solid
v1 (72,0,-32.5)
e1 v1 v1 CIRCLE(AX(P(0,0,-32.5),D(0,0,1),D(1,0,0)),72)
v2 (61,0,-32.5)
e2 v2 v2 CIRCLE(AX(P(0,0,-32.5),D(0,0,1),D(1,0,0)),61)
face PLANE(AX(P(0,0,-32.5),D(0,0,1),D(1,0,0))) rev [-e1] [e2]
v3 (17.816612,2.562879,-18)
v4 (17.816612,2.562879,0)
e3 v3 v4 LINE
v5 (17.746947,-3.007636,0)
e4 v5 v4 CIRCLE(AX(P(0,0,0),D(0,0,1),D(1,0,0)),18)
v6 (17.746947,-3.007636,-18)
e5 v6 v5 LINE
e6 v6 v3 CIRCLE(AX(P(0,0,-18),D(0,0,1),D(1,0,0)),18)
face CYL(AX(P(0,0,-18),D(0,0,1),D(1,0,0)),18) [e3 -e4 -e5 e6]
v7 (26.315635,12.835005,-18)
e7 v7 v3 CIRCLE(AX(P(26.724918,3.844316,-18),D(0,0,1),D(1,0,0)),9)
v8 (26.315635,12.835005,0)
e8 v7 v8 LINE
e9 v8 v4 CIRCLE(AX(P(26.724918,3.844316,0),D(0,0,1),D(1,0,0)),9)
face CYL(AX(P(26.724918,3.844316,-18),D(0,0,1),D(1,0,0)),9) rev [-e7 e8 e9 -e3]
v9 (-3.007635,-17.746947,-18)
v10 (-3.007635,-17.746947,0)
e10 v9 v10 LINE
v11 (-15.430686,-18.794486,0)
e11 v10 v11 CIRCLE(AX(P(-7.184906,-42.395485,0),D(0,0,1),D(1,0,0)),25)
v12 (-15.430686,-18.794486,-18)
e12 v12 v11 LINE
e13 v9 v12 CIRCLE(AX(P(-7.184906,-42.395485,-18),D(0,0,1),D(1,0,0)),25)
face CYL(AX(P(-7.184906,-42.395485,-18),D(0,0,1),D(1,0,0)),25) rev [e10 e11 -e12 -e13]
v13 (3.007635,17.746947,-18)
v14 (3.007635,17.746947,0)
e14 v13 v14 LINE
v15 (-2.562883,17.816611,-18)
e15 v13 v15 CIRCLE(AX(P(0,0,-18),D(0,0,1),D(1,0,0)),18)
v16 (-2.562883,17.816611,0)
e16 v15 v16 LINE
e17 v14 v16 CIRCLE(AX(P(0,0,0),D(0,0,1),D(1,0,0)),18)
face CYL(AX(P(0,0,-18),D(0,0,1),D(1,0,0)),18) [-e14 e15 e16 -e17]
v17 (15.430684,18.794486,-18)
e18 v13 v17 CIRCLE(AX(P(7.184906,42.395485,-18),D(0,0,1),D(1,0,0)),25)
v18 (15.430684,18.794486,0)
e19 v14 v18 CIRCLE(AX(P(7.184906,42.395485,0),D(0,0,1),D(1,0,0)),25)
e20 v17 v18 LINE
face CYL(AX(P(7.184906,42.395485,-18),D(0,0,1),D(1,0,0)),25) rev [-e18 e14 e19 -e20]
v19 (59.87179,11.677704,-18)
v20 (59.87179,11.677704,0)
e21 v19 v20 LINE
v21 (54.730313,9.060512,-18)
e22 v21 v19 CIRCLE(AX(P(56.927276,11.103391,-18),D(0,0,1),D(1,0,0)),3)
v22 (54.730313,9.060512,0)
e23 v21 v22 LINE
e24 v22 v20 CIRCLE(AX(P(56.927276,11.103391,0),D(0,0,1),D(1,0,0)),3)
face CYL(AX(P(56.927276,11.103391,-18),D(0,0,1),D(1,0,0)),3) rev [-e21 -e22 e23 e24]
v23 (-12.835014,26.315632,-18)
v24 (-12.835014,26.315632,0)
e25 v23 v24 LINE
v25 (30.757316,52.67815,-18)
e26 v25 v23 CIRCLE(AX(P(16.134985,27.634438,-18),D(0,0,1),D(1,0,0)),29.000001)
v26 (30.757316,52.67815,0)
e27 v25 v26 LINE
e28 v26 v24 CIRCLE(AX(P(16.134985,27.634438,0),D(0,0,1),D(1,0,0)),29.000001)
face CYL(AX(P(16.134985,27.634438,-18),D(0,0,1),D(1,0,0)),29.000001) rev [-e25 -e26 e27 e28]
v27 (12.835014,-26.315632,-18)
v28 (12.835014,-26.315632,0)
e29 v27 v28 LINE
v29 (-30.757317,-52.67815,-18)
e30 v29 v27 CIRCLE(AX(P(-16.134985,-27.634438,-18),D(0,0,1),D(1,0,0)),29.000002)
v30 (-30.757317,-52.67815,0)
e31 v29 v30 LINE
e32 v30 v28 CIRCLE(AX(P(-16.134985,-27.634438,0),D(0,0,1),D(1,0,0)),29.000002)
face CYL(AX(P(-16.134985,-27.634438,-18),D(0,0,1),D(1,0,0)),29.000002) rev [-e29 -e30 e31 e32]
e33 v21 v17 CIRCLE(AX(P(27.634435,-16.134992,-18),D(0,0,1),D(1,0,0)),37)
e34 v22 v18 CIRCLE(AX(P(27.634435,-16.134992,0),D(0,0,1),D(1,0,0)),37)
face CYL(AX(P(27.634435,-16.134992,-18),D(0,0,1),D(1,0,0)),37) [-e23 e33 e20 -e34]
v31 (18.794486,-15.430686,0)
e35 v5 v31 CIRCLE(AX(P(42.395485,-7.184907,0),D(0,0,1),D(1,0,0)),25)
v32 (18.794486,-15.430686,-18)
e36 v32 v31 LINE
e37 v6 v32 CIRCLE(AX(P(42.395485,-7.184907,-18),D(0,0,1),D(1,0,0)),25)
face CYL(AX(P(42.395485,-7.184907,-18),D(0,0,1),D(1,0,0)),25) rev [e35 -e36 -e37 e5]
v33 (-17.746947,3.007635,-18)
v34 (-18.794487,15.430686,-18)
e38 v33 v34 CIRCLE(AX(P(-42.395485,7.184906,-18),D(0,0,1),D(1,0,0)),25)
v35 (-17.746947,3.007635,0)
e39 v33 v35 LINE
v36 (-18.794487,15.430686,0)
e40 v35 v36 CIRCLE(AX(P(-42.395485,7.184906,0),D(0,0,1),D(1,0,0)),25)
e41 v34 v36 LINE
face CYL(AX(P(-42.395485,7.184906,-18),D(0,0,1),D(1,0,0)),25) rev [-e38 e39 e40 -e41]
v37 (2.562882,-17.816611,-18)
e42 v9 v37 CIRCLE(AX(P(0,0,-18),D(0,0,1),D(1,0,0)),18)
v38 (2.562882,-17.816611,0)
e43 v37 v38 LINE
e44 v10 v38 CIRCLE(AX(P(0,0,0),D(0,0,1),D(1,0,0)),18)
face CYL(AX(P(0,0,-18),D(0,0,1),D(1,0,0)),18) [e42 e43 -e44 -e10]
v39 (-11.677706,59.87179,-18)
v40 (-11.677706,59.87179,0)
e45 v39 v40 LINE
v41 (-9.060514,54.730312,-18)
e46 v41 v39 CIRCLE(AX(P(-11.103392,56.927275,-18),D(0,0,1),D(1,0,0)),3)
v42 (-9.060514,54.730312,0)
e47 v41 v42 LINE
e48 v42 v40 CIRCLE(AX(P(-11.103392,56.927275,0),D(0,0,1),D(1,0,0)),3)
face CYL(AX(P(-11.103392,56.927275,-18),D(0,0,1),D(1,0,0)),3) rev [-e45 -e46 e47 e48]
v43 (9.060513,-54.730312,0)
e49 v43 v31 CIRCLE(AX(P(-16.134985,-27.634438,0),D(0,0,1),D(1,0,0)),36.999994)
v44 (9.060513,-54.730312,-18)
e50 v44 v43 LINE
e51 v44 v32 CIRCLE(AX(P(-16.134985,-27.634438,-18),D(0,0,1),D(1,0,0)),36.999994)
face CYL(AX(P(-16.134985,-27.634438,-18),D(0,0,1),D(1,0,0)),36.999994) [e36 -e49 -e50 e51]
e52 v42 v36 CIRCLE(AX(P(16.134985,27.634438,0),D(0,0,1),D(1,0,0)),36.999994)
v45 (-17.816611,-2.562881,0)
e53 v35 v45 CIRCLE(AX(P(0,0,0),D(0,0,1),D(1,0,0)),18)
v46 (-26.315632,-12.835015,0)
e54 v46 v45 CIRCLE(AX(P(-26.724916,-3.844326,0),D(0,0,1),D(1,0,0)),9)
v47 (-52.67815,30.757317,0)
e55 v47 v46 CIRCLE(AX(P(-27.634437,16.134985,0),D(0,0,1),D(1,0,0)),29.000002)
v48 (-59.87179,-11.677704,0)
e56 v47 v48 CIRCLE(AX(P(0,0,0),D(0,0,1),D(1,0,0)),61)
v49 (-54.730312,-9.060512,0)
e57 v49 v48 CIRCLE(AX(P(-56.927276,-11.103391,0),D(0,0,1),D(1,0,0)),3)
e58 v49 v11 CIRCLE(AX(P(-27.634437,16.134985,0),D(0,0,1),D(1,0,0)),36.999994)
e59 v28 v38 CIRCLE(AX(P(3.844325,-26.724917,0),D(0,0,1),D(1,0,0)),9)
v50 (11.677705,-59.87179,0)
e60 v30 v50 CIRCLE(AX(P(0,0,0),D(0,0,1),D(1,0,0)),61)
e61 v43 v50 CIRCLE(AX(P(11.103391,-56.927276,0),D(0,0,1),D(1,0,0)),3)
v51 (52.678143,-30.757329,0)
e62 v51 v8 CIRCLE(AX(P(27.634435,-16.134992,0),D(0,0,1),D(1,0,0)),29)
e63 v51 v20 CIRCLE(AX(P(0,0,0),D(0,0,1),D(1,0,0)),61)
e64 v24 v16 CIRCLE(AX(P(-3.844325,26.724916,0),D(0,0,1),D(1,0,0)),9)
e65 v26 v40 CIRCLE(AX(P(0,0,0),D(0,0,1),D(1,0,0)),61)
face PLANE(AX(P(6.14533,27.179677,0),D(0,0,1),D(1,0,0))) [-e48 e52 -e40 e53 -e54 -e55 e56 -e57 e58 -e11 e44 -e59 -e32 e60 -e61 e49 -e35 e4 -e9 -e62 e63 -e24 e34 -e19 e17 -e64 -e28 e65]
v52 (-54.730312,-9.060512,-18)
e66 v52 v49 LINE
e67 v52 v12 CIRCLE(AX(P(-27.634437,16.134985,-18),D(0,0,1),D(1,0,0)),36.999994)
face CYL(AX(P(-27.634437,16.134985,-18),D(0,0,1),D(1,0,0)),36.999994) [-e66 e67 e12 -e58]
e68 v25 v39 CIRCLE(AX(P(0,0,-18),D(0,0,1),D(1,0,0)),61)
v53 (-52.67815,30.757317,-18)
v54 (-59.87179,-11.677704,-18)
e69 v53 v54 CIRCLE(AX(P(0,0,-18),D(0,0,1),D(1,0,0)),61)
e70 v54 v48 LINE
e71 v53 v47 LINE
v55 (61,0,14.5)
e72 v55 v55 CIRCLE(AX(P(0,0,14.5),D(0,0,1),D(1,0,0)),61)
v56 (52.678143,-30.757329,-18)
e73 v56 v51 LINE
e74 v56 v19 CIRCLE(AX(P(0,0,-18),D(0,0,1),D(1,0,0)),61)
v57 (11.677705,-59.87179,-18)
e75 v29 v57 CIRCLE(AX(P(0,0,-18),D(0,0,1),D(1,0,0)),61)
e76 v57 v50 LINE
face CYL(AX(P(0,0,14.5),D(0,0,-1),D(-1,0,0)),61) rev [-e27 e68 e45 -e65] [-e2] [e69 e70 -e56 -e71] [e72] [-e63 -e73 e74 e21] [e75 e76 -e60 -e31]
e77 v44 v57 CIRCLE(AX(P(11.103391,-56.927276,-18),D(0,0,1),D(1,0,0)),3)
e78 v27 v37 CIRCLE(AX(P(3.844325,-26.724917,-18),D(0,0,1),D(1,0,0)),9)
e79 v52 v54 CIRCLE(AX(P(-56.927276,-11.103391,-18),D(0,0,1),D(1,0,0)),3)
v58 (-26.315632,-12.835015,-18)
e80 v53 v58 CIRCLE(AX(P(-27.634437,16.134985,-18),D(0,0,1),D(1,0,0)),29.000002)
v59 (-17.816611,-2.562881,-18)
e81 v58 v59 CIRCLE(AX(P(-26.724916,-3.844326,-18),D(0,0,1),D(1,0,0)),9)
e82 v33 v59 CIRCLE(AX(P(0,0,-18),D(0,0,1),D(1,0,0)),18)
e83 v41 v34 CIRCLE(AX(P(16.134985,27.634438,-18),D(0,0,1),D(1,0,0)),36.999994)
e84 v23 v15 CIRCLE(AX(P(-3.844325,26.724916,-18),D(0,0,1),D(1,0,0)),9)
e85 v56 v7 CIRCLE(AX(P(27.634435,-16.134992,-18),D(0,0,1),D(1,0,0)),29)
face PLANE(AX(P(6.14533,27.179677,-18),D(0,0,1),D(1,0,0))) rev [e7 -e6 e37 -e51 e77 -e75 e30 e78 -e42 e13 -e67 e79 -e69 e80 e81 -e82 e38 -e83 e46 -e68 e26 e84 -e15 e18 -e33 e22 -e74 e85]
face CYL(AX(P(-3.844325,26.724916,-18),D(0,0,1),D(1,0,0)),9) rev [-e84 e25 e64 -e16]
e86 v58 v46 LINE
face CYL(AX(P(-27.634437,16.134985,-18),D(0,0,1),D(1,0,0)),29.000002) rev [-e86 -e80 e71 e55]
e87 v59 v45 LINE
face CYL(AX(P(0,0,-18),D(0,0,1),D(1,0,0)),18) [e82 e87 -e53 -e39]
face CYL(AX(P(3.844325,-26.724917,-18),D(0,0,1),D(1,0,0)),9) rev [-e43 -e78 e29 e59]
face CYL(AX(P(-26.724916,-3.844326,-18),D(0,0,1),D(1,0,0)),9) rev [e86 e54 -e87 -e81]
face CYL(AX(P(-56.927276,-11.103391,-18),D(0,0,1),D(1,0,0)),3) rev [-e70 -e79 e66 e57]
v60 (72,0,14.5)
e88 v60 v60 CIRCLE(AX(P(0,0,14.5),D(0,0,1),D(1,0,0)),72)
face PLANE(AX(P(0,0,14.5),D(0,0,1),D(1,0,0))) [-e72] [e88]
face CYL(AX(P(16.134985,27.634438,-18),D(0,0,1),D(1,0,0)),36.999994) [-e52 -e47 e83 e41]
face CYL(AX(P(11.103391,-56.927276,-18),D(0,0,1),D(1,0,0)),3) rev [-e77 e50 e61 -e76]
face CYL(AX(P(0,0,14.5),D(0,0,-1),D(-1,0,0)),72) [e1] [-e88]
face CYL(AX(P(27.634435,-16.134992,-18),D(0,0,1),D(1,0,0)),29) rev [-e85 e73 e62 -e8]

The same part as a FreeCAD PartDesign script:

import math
import FreeCAD as App
import Part
import Sketcher

V = App.Vector

doc = App.newDocument("Part")
body = doc.addObject("PartDesign::Body", "Body")

# Sketch on XY plane
sketch1 = body.newObject("Sketcher::SketchObject", "Sketch")
sketch1.AttachmentSupport = (doc.getObject("XY_Plane"), [""])
sketch1.MapMode = "FlatFace"
sketch1.addGeometry([
    Part.ArcOfCircle(Part.Circle(V(0, 0, 0), V(0, 0, 1), 61), math.radians(-120.279476), math.radians(-78.963297)),  # 0
    Part.ArcOfCircle(Part.Circle(V(11.103391, -56.927276, 0), V(0, 0, 1), 3), math.radians(132.918669), math.radians(281.036703)),  # 1
    Part.ArcOfCircle(Part.Circle(V(-16.134985, -27.634438, 0), V(0, 0, 1), 36.999994), math.radians(-47.081331), math.radians(19.258529)),  # 2
    Part.ArcOfCircle(Part.Circle(V(42.395485, -7.184907, 0), V(0, 0, 1), 25), math.radians(170.381283), math.radians(199.258529)),  # 3
    Part.ArcOfCircle(Part.Circle(V(0, 0, 0), V(0, 0, 1), 18), math.radians(-9.618719), math.radians(8.185715)),  # 4
    Part.ArcOfCircle(Part.Circle(V(26.724918, 3.844316, 0), V(0, 0, 1), 9), math.radians(92.606475), math.radians(188.185704)),  # 5
    Part.ArcOfCircle(Part.Circle(V(27.634435, -16.134992, 0), V(0, 0, 1), 29), math.radians(-30.279489), math.radians(92.606475)),  # 6
    Part.ArcOfCircle(Part.Circle(V(0, 0, 0), V(0, 0, 1), 61), math.radians(-30.279489), math.radians(11.036703)),  # 7
    Part.ArcOfCircle(Part.Circle(V(56.927276, 11.103391, 0), V(0, 0, 1), 3), math.radians(-137.081327), math.radians(11.036703)),  # 8
    Part.ArcOfCircle(Part.Circle(V(27.634435, -16.134992, 0), V(0, 0, 1), 37), math.radians(42.918673), math.radians(109.258525)),  # 9
    Part.ArcOfCircle(Part.Circle(V(7.184906, 42.395485, 0), V(0, 0, 1), 25), math.radians(-99.618717), math.radians(-70.741475)),  # 10
    Part.ArcOfCircle(Part.Circle(V(0, 0, 0), V(0, 0, 1), 18), math.radians(80.381283), math.radians(98.185729)),  # 11
    Part.ArcOfCircle(Part.Circle(V(-3.844325, 26.724916, 0), V(0, 0, 1), 9), math.radians(-177.393513), math.radians(-81.814267)),  # 12
    Part.ArcOfCircle(Part.Circle(V(16.134985, 27.634438, 0), V(0, 0, 1), 29.000001), math.radians(59.720526), math.radians(182.606487)),  # 13
    Part.ArcOfCircle(Part.Circle(V(0, 0, 0), V(0, 0, 1), 61), math.radians(59.720526), math.radians(101.036705)),  # 14
    Part.ArcOfCircle(Part.Circle(V(-11.103392, 56.927275, 0), V(0, 0, 1), 3), math.radians(-47.08133), math.radians(101.036705)),  # 15
    Part.ArcOfCircle(Part.Circle(V(16.134985, 27.634438, 0), V(0, 0, 1), 36.999994), math.radians(132.91867), math.radians(199.25853)),  # 16
    Part.ArcOfCircle(Part.Circle(V(-42.395485, 7.184906, 0), V(0, 0, 1), 25), math.radians(-9.618717), math.radians(19.25853)),  # 17
    Part.ArcOfCircle(Part.Circle(V(0, 0, 0), V(0, 0, 1), 18), math.radians(170.381283), math.radians(188.185723)),  # 18
    Part.ArcOfCircle(Part.Circle(V(-26.724916, -3.844326, 0), V(0, 0, 1), 9), math.radians(-87.393516), math.radians(8.185749)),  # 19
    Part.ArcOfCircle(Part.Circle(V(-27.634437, 16.134985, 0), V(0, 0, 1), 29.000002), math.radians(149.720524), math.radians(272.606484)),  # 20
    Part.ArcOfCircle(Part.Circle(V(0, 0, 0), V(0, 0, 1), 61), math.radians(149.720524), math.radians(191.036703)),  # 21
    Part.ArcOfCircle(Part.Circle(V(-56.927276, -11.103391, 0), V(0, 0, 1), 3), math.radians(42.918667), math.radians(191.036703)),  # 22
    Part.ArcOfCircle(Part.Circle(V(-27.634437, 16.134985, 0), V(0, 0, 1), 36.999994), math.radians(-137.081333), math.radians(-70.741471)),  # 23
    Part.ArcOfCircle(Part.Circle(V(-7.184906, -42.395485, 0), V(0, 0, 1), 25), math.radians(80.381283), math.radians(109.258529)),  # 24
    Part.ArcOfCircle(Part.Circle(V(0, 0, 0), V(0, 0, 1), 18), math.radians(-99.618717), math.radians(-81.814275)),  # 25
    Part.ArcOfCircle(Part.Circle(V(3.844325, -26.724917, 0), V(0, 0, 1), 9), math.radians(2.606485), math.radians(98.185739)),  # 26
    Part.ArcOfCircle(Part.Circle(V(-16.134985, -27.634438, 0), V(0, 0, 1), 29.000002), math.radians(-120.279476), math.radians(2.606485)),  # 27
], False)
sketch1.addConstraint([
    Sketcher.Constraint("Coincident", 0, 2, 1, 2),
    Sketcher.Constraint("Coincident", 1, 1, 2, 1),
    Sketcher.Constraint("Coincident", 2, 2, 3, 2),
    Sketcher.Constraint("Coincident", 3, 1, 4, 1),
    Sketcher.Constraint("Coincident", 4, 2, 5, 2),
    Sketcher.Constraint("Coincident", 5, 1, 6, 2),
    Sketcher.Constraint("Coincident", 6, 1, 7, 1),
    Sketcher.Constraint("Coincident", 7, 2, 8, 2),
    Sketcher.Constraint("Coincident", 8, 1, 9, 1),
    Sketcher.Constraint("Coincident", 9, 2, 10, 2),
    Sketcher.Constraint("Coincident", 10, 1, 11, 1),
    Sketcher.Constraint("Coincident", 11, 2, 12, 2),
    Sketcher.Constraint("Coincident", 12, 1, 13, 2),
    Sketcher.Constraint("Coincident", 13, 1, 14, 1),
    Sketcher.Constraint("Coincident", 14, 2, 15, 2),
    Sketcher.Constraint("Coincident", 15, 1, 16, 1),
    Sketcher.Constraint("Coincident", 16, 2, 17, 2),
    Sketcher.Constraint("Coincident", 17, 1, 18, 1),
    Sketcher.Constraint("Coincident", 18, 2, 19, 2),
    Sketcher.Constraint("Coincident", 19, 1, 20, 2),
    Sketcher.Constraint("Coincident", 20, 1, 21, 1),
    Sketcher.Constraint("Coincident", 21, 2, 22, 2),
    Sketcher.Constraint("Coincident", 22, 1, 23, 1),
    Sketcher.Constraint("Coincident", 23, 2, 24, 2),
    Sketcher.Constraint("Coincident", 24, 1, 25, 1),
    Sketcher.Constraint("Coincident", 25, 2, 26, 2),
    Sketcher.Constraint("Coincident", 26, 1, 27, 2),
    Sketcher.Constraint("Coincident", 27, 1, 0, 1),
    Sketcher.Constraint("Coincident", 0, 3, -1, 1),
    Sketcher.Constraint("Coincident", 4, 3, -1, 1),
    Sketcher.Constraint("Coincident", 7, 3, -1, 1),
    Sketcher.Constraint("Coincident", 11, 3, -1, 1),
    Sketcher.Constraint("Coincident", 14, 3, -1, 1),
    Sketcher.Constraint("Coincident", 18, 3, -1, 1),
    Sketcher.Constraint("Coincident", 21, 3, -1, 1),
    Sketcher.Constraint("Coincident", 25, 3, -1, 1),
    Sketcher.Constraint("Coincident", 9, 3, 6, 3),
    Sketcher.Constraint("Coincident", 16, 3, 13, 3),
    Sketcher.Constraint("Coincident", 23, 3, 20, 3),
    Sketcher.Constraint("Coincident", 27, 3, 2, 3),
    Sketcher.Constraint("Radius", 0, 61.0),
    Sketcher.Constraint("Radius", 1, 3.0),
    Sketcher.Constraint("Radius", 3, 25.0),
    Sketcher.Constraint("Radius", 4, 18.0),
    Sketcher.Constraint("Radius", 5, 9.0),
    Sketcher.Constraint("Radius", 6, 29.0),
    Sketcher.Constraint("Radius", 7, 61.0),
    Sketcher.Constraint("Radius", 8, 3.0),
    Sketcher.Constraint("Radius", 9, 37.0),
    Sketcher.Constraint("Radius", 10, 25.0),
    Sketcher.Constraint("Radius", 11, 18.0),
    Sketcher.Constraint("Radius", 12, 9.0),
    Sketcher.Constraint("Radius", 13, 29.000001),
    Sketcher.Constraint("Radius", 14, 61.0),
    Sketcher.Constraint("Radius", 15, 3.0),
    Sketcher.Constraint("Radius", 17, 25.0),
    Sketcher.Constraint("Radius", 18, 18.0),
    Sketcher.Constraint("Radius", 19, 9.0),
    Sketcher.Constraint("Radius", 21, 61.0),
    Sketcher.Constraint("Radius", 22, 3.0),
    Sketcher.Constraint("Radius", 24, 25.0),
    Sketcher.Constraint("Radius", 25, 18.0),
    Sketcher.Constraint("Radius", 26, 9.0),
    Sketcher.Constraint("Radius", 27, 29.000002),
    Sketcher.Constraint("Radius", 2, 36.999994),
    Sketcher.Constraint("Radius", 16, 36.999994),
    Sketcher.Constraint("Radius", 20, 29.000002),
    Sketcher.Constraint("Radius", 23, 36.999994),
    Sketcher.Constraint("DistanceX", 15, 3, 10, 3, 18.288299),
    Sketcher.Constraint("DistanceY", 7, 2, 5, 1, 1.157301),
    Sketcher.Constraint("DistanceX", 9, 2, 16, 3, 0.704301),
    Sketcher.Constraint("DistanceX", 12, 1, 15, 1, 3.7745),
    Sketcher.Constraint("DistanceY", 16, 2, 23, 3, 0.704299),
    Sketcher.Constraint("DistanceX", 27, 3, 23, 2, 0.704299),
    Sketcher.Constraint("DistanceX", -1, 1, 1, 3, 11.103391),
    Sketcher.Constraint("DistanceY", -1, 1, 8, 3, 11.103391),
    Sketcher.Constraint("DistanceY", 22, 3, -1, 1, 11.103391),
    Sketcher.Constraint("DistanceY", 0, 2, -1, 1, 59.87179),
    Sketcher.Constraint("DistanceX", -1, 1, 4, 2, 17.816612),
    Sketcher.Constraint("DistanceY", 6, 1, -1, 1, 30.757329),
    Sketcher.Constraint("DistanceX", -1, 1, 7, 2, 59.87179),
    Sketcher.Constraint("DistanceY", -1, 1, 8, 1, 9.060512),
    Sketcher.Constraint("DistanceY", -1, 1, 11, 2, 17.816611),
    Sketcher.Constraint("DistanceY", -1, 1, 12, 1, 26.315632),
    Sketcher.Constraint("DistanceY", -1, 1, 13, 1, 52.678151),
    Sketcher.Constraint("DistanceY", -1, 1, 14, 2, 59.87179),
    Sketcher.Constraint("DistanceX", 18, 2, -1, 1, 17.816611),
    Sketcher.Constraint("DistanceX", 20, 1, -1, 1, 52.67815),
    Sketcher.Constraint("DistanceX", 21, 2, -1, 1, 59.87179),
    Sketcher.Constraint("DistanceY", 25, 2, -1, 1, 17.816611),
    Sketcher.Constraint("DistanceY", 26, 1, -1, 1, 26.315632),
    Sketcher.Constraint("DistanceY", 27, 1, -1, 1, 52.67815),
    Sketcher.Constraint("DistanceX", 1, 1, 1, 3, 2.042879),
    Sketcher.Constraint("DistanceX", 2, 2, 9, 3, 8.839949),
    Sketcher.Constraint("DistanceX", 3, 1, 5, 3, 8.977971),
    Sketcher.Constraint("DistanceX", 12, 3, 10, 1, 6.851961),
    Sketcher.Constraint("DistanceX", 19, 3, 17, 1, 8.977969),
    Sketcher.Constraint("DistanceY", 19, 1, 19, 3, 8.990689),
    Sketcher.Constraint("DistanceY", 22, 3, 22, 1, 2.042878),
    Sketcher.Constraint("DistanceX", 24, 1, 26, 3, 6.85196),
])
pad1 = body.newObject("PartDesign::Pad", "Pad")
pad1.Profile = sketch1
pad1.Length = 18
pad1.Reversed = True

# Sketch on XY plane
sketch2 = body.newObject("Sketcher::SketchObject", "Sketch001")
sketch2.AttachmentSupport = (doc.getObject("XY_Plane"), [""])
sketch2.MapMode = "FlatFace"
sketch2.addGeometry([
    Part.Circle(V(0, 0, 0), V(0, 0, 1), 72),
    Part.Circle(V(0, 0, 0), V(0, 0, 1), 61),
], False)
sketch2.addConstraint([
    Sketcher.Constraint("Coincident", 0, 3, -1, 1),
    Sketcher.Constraint("Coincident", 1, 3, -1, 1),
    Sketcher.Constraint("Diameter", 0, 144.0),
    Sketcher.Constraint("Diameter", 1, 122.0),
])
pad2 = body.newObject("PartDesign::Pad", "Pad001")
pad2.Profile = sketch2
pad2.Type = "TwoLengths"
pad2.Length = 14.5
pad2.Length2 = 32.5

doc.recompute()
